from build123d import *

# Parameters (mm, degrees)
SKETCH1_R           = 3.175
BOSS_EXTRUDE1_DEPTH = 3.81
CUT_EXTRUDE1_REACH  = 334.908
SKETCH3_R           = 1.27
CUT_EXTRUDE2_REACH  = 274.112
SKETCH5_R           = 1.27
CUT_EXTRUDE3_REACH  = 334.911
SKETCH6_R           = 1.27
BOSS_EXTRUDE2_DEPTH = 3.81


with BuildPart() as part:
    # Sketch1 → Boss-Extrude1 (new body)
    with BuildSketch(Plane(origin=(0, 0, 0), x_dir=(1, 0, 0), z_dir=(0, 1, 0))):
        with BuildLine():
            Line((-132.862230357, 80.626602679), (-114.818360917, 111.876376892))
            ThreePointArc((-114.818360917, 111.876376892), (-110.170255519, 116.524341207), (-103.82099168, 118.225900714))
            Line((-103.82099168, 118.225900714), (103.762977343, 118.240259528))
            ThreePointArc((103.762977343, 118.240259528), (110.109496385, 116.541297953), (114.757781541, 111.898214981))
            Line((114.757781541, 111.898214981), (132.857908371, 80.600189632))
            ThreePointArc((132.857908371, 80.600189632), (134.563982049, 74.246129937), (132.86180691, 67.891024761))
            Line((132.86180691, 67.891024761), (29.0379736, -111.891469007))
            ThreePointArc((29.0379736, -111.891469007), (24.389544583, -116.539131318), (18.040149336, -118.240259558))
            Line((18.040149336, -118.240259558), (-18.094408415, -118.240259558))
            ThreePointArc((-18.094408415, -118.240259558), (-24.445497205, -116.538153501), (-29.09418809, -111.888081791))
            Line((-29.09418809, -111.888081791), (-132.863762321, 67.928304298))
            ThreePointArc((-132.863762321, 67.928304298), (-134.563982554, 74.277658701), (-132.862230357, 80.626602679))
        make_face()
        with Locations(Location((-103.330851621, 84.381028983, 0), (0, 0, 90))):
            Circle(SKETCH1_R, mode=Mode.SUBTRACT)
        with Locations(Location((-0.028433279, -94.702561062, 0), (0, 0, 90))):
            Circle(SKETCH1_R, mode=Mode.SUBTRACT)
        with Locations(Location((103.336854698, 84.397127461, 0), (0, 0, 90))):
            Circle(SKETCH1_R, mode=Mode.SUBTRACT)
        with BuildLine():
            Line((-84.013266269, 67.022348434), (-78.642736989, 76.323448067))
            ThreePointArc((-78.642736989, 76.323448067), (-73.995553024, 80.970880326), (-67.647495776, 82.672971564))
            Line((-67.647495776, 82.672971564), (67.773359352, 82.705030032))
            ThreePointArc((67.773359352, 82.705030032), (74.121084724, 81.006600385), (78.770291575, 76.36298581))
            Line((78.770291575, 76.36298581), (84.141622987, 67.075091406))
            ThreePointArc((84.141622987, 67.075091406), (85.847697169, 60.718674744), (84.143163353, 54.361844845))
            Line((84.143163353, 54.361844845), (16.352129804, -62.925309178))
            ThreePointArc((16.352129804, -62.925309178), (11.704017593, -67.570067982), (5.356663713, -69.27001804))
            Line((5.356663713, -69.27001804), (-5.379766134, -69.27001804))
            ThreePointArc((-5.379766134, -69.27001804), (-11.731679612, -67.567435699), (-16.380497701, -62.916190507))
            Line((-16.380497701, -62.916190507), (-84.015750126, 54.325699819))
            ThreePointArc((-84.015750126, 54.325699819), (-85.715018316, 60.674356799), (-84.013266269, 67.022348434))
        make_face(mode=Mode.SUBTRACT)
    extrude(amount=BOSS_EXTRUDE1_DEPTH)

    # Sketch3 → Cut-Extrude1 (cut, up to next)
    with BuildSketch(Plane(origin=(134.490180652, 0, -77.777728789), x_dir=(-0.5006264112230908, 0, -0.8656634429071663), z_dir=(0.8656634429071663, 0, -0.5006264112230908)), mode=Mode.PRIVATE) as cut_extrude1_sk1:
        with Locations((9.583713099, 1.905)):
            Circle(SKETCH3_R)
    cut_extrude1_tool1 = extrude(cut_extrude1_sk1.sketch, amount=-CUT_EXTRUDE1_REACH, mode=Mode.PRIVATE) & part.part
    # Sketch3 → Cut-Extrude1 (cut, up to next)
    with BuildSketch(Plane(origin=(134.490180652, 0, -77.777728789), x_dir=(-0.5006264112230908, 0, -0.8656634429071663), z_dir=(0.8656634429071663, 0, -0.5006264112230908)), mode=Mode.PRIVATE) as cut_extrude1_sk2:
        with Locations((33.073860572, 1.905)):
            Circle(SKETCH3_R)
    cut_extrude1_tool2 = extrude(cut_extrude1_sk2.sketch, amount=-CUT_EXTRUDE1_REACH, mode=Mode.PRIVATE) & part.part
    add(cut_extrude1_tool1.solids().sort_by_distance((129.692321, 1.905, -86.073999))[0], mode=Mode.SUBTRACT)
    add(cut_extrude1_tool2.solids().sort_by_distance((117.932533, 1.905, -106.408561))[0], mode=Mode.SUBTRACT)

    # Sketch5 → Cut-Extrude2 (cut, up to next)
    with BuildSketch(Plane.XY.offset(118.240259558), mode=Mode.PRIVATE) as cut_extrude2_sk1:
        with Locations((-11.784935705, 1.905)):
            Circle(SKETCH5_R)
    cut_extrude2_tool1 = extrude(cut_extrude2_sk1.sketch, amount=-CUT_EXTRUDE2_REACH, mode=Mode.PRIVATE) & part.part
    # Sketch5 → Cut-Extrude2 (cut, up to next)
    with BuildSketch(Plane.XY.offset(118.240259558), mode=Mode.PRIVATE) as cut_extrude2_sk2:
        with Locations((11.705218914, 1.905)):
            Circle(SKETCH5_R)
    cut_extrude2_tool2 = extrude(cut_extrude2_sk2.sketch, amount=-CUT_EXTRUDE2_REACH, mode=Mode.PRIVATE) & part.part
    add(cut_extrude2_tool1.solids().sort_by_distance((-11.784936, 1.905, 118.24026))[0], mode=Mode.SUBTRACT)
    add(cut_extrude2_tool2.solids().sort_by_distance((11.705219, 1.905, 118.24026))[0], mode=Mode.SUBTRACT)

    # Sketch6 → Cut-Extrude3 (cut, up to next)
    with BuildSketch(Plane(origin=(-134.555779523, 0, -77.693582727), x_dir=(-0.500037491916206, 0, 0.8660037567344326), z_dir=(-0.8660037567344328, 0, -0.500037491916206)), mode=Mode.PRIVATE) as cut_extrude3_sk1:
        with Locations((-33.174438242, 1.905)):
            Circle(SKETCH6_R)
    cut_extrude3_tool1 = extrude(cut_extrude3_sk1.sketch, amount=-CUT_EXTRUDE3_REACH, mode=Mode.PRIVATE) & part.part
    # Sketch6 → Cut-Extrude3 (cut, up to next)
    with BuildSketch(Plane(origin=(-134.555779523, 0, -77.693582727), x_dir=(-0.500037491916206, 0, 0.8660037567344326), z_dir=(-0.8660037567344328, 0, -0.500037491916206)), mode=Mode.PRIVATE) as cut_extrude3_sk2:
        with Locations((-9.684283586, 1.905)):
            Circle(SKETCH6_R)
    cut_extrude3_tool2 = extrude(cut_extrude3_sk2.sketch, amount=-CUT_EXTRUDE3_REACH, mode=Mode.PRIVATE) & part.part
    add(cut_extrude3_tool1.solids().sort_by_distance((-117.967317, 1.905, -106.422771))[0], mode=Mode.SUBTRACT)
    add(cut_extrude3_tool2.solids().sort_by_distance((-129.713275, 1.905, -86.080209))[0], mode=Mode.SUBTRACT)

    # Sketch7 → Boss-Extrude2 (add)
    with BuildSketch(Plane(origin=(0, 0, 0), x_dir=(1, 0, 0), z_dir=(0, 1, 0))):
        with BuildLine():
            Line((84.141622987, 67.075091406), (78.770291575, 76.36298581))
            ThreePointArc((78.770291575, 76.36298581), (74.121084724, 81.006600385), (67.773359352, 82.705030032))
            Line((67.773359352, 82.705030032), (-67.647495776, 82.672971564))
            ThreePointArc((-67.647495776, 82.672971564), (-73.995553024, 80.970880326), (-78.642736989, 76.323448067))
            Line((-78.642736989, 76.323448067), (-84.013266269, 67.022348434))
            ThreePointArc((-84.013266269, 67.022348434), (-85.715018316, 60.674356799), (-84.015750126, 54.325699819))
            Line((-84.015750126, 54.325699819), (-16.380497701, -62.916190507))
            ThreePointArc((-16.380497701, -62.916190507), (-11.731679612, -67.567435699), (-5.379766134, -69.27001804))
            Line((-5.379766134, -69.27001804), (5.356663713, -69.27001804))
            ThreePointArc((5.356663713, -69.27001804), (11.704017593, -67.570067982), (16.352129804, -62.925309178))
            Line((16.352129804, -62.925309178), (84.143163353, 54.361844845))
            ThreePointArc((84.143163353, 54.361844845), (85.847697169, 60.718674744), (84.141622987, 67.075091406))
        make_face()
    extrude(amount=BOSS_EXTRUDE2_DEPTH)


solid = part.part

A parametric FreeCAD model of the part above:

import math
import FreeCAD as App
import Part
import Sketcher

V = App.Vector
Q = App.Units.Quantity

doc = App.newDocument("Part")
body = doc.addObject("PartDesign::Body", "Body")

# Sketch on XZ plane
sketch1 = body.newObject("Sketcher::SketchObject", "Sketch")
sketch1.AttachmentSupport = (doc.getObject("XZ_Plane"), [""])
sketch1.MapMode = "FlatFace"
sketch1.addGeometry([
    Part.LineSegment(V(-114.8, -111.9, 0), V(-132.9, -80.6, 0)),  # 0
    Part.ArcOfCircle(Part.Circle(V(-121.9, -74.3, 0), V(0, 0, 1), 12.7), math.radians(150), math.radians(210)),  # 1
    Part.LineSegment(V(-132.9, -67.9, 0), V(-29.1, 111.9, 0)),  # 2
    Part.ArcOfCircle(Part.Circle(V(-18.1, 105.5, 0), V(0, 0, 1), 12.7), math.radians(90), math.radians(150)),  # 3
    Part.LineSegment(V(-18.1, 118.2, 0), V(18, 118.2, 0)),  # 4
    Part.ArcOfCircle(Part.Circle(V(18, 105.5, 0), V(0, 0, 1), 12.7), math.radians(30), math.radians(90)),  # 5
    Part.LineSegment(V(29, 111.9, 0), V(132.9, -67.9, 0)),  # 6
    Part.ArcOfCircle(Part.Circle(V(121.9, -74.2, 0), V(0, 0, 1), 12.7), math.radians(-30), math.radians(30)),  # 7
    Part.LineSegment(V(132.9, -80.6, 0), V(114.8, -111.9, 0)),  # 8
    Part.ArcOfCircle(Part.Circle(V(103.8, -105.5, 0), V(0, 0, 1), 12.7), math.radians(-90), math.radians(-30)),  # 9
    Part.LineSegment(V(103.8, -118.2, 0), V(-103.8, -118.2, 0)),  # 10
    Part.ArcOfCircle(Part.Circle(V(-103.8, -105.5, 0), V(0, 0, 1), 12.7), math.radians(-150), math.radians(-90)),  # 11
    Part.Circle(V(0, 94.7, 0), V(0, 0, 1), 3.2),  # 12
    Part.LineSegment(V(-84, -67, 0), V(-78.6, -76.3, 0)),  # 13
    Part.ArcOfCircle(Part.Circle(V(-67.6, -70, 0), V(0, 0, 1), 12.7), math.radians(-150), math.radians(-90)),  # 14
    Part.LineSegment(V(-67.6, -82.7, 0), V(67.8, -82.7, 0)),  # 15
    Part.ArcOfCircle(Part.Circle(V(67.8, -70, 0), V(0, 0, 1), 12.7), math.radians(-90), math.radians(-30)),  # 16
    Part.LineSegment(V(78.8, -76.4, 0), V(84.1, -67.1, 0)),  # 17
    Part.ArcOfCircle(Part.Circle(V(73.1, -60.7, 0), V(0, 0, 1), 12.7), math.radians(-30), math.radians(30)),  # 18
    Part.LineSegment(V(84.1, -54.4, 0), V(16.4, 62.9, 0)),  # 19
    Part.ArcOfCircle(Part.Circle(V(5.4, 56.6, 0), V(0, 0, 1), 12.7), math.radians(30), math.radians(90)),  # 20
    Part.LineSegment(V(5.4, 69.3, 0), V(-5.4, 69.3, 0)),  # 21
    Part.ArcOfCircle(Part.Circle(V(-5.4, 56.6, 0), V(0, 0, 1), 12.7), math.radians(90), math.radians(150)),  # 22
    Part.LineSegment(V(-16.4, 62.9, 0), V(-84, -54.3, 0)),  # 23
    Part.ArcOfCircle(Part.Circle(V(-73, -60.7, 0), V(0, 0, 1), 12.7), math.radians(150), math.radians(210)),  # 24
    Part.Circle(V(103.3, -84.4, 0), V(0, 0, 1), 3.2),  # 25
    Part.Circle(V(-103.3, -84.4, 0), V(0, 0, 1), 3.2),  # 26
], False)
sketch1.addConstraint([
    Sketcher.Constraint("Tangent", 0, 2, 1, 2),
    Sketcher.Constraint("Tangent", 1, 1, 2, 1),
    Sketcher.Constraint("Tangent", 2, 2, 3, 2),
    Sketcher.Constraint("Tangent", 3, 1, 4, 1),
    Sketcher.Constraint("Tangent", 4, 2, 5, 2),
    Sketcher.Constraint("Tangent", 5, 1, 6, 1),
    Sketcher.Constraint("Tangent", 6, 2, 7, 2),
    Sketcher.Constraint("Tangent", 7, 1, 8, 1),
    Sketcher.Constraint("Tangent", 8, 2, 9, 2),
    Sketcher.Constraint("Tangent", 9, 1, 10, 1),
    Sketcher.Constraint("Tangent", 10, 2, 11, 2),
    Sketcher.Constraint("Tangent", 11, 1, 0, 1),
    Sketcher.Constraint("Tangent", 13, 2, 14, 1),
    Sketcher.Constraint("Tangent", 14, 2, 15, 1),
    Sketcher.Constraint("Tangent", 15, 2, 16, 1),
    Sketcher.Constraint("Tangent", 16, 2, 17, 1),
    Sketcher.Constraint("Tangent", 17, 2, 18, 1),
    Sketcher.Constraint("Tangent", 18, 2, 19, 1),
    Sketcher.Constraint("Tangent", 19, 2, 20, 1),
    Sketcher.Constraint("Tangent", 20, 2, 21, 1),
    Sketcher.Constraint("Tangent", 21, 2, 22, 1),
    Sketcher.Constraint("Tangent", 22, 2, 23, 1),
    Sketcher.Constraint("Tangent", 23, 2, 24, 1),
    Sketcher.Constraint("Tangent", 24, 2, 13, 1),
    Sketcher.Constraint("Horizontal", 4),
    Sketcher.Constraint("Horizontal", 21),
    Sketcher.Constraint("Equal", 1, 3),
    Sketcher.Constraint("Equal", 3, 5),
    Sketcher.Constraint("Equal", 5, 7),
    Sketcher.Constraint("Equal", 7, 9),
    Sketcher.Constraint("Equal", 9, 11),
    Sketcher.Constraint("Equal", 11, 14),
    Sketcher.Constraint("Equal", 14, 16),
    Sketcher.Constraint("Equal", 16, 18),
    Sketcher.Constraint("Equal", 18, 20),
    Sketcher.Constraint("Equal", 20, 22),
    Sketcher.Constraint("Equal", 22, 24),
    Sketcher.Constraint("Equal", 12, 25),
    Sketcher.Constraint("Equal", 25, 26),
    Sketcher.Constraint("Parallel", 0, 13),
    Sketcher.Constraint("Parallel", 8, 17),
    Sketcher.Constraint("Radius", 1, Q("0.5 in")),
    Sketcher.Constraint("Diameter", 12, Q("0.25 in")),
    Sketcher.Constraint("DistanceX", 21, 2, 21, 1, 10.73643),
    Sketcher.Constraint("DistanceY", 11, 3, -1, 1, 105.525901),
    Sketcher.Constraint("DistanceY", 23, 2, -1, 1, 54.3257),
    Sketcher.Constraint("DistanceY", 12, 3, 3, 3, 10.837698),
    Sketcher.Constraint("DistanceX", 12, 3, 16, 3, 67.804799),
    Sketcher.Constraint("DistanceY", 7, 3, 18, 3, 13.525098),
    Sketcher.Constraint("DistanceY", 14, 3, 24, 3, 9.3011),
    Sketcher.Constraint("DistanceX", 25, 3, 9, 3, 0.427001),
    Sketcher.Constraint("DistanceY", 11, 3, 0, 2, 24.899298),
    Sketcher.Constraint("DistanceY", 0, 2, 1, 1, 12.698298),
    Sketcher.Constraint("DistanceX", 7, 1, 6, 2, 0.003899),
    Sketcher.Constraint("DistanceX", 8, 2, 7, 3, 7.106201),
    Sketcher.Constraint("DistanceX", 26, 3, 23, 2, 19.315101),
    Sketcher.Constraint("Distance", 2, 207.61035),
    Sketcher.Constraint("Distance", 10, 207.58397),
    Sketcher.Constraint("Distance", 15, 135.420859),
    Sketcher.Constraint("Distance", 17, 10.729221),
    Sketcher.Constraint("Distance", 23, 135.35209),
    Sketcher.Constraint("DistanceX", 4, 1, 4, 2, 36.134558),
    Sketcher.Constraint("DistanceX", 3, 3, -1, 1, 18.094408),
    Sketcher.Constraint("DistanceY", -1, 1, 3, 3, 105.54026),
    Sketcher.Constraint("DistanceY", 9, 3, -1, 1, 105.54026),
    Sketcher.Constraint("DistanceX", 14, 3, -1, 1, 67.644489),
    Sketcher.Constraint("DistanceY", 14, 3, -1, 1, 69.972972),
    Sketcher.Constraint("DistanceY", 26, 3, -1, 1, 84.381029),
    Sketcher.Constraint("DistanceY", 25, 3, 18, 3, 23.679991),
])
pad1 = body.newObject("PartDesign::Pad", "Pad")
pad1.Profile = sketch1
pad1.Length = Q("0.15 in")
pad1.Reversed = True

# Sketch on an angled plane
sketch2 = body.newObject("Sketcher::SketchObject", "Sketch001")
sketch2.Placement = App.Placement(V(134.490181, 0, -77.777729), App.Rotation(V(-0.500626411, 0, -0.865663443), V(0, 1, 0), V(0.865663443, 0, -0.500626411), "ZXY"))
sketch2.addGeometry(Part.Circle(V(9.6, 1.9, 0), V(0, 0, 1), 1.3), False)
sketch2.addConstraint([
    Sketcher.Constraint("Diameter", 0, Q("0.1 in")),
    Sketcher.Constraint("DistanceY", -1, 1, 0, 3, Q("0.075 in")),
    Sketcher.Constraint("DistanceX", -1, 1, 0, 3, 9.583713),
])
pocket1 = body.newObject("PartDesign::Pocket", "Pocket")
pocket1.Profile = sketch2
pocket1.Type = "UpToFirst"

# Sketch on an angled plane
sketch3 = body.newObject("Sketcher::SketchObject", "Sketch002")
sketch3.Placement = App.Placement(V(134.490181, 0, -77.777729), App.Rotation(V(-0.500626411, 0, -0.865663443), V(0, 1, 0), V(0.865663443, 0, -0.500626411), "ZXY"))
sketch3.addGeometry(Part.Circle(V(33.1, 1.9, 0), V(0, 0, 1), 1.3), False)
sketch3.addConstraint([
    Sketcher.Constraint("Diameter", 0, Q("0.1 in")),
    Sketcher.Constraint("DistanceY", -1, 1, 0, 3, Q("0.075 in")),
    Sketcher.Constraint("DistanceX", -1, 1, 0, 3, 33.073861),
])
pocket2 = body.newObject("PartDesign::Pocket", "Pocket001")
pocket2.Profile = sketch3
pocket2.Type = "UpToFirst"

# Sketch on XY plane
sketch4 = body.newObject("Sketcher::SketchObject", "Sketch003")
sketch4.AttachmentSupport = (doc.getObject("XY_Plane"), [""])
sketch4.MapMode = "FlatFace"
sketch4.AttachmentOffset = App.Placement(V(0, 0, 118.24026), App.Rotation())
sketch4.addGeometry(Part.Circle(V(-11.8, 1.9, 0), V(0, 0, 1), 1.3), False)
sketch4.addConstraint([
    Sketcher.Constraint("Diameter", 0, Q("0.1 in")),
    Sketcher.Constraint("DistanceY", -1, 1, 0, 3, Q("0.075 in")),
    Sketcher.Constraint("DistanceX", 0, 3, -1, 1, 11.784936),
])
pocket3 = body.newObject("PartDesign::Pocket", "Pocket002")
pocket3.Profile = sketch4
pocket3.Type = "UpToFirst"

# Sketch on XY plane
sketch5 = body.newObject("Sketcher::SketchObject", "Sketch004")
sketch5.AttachmentSupport = (doc.getObject("XY_Plane"), [""])
sketch5.MapMode = "FlatFace"
sketch5.AttachmentOffset = App.Placement(V(0, 0, 118.24026), App.Rotation())
sketch5.addGeometry(Part.Circle(V(11.7, 1.9, 0), V(0, 0, 1), 1.3), False)
sketch5.addConstraint([
    Sketcher.Constraint("Diameter", 0, Q("0.1 in")),
    Sketcher.Constraint("DistanceY", -1, 1, 0, 3, Q("0.075 in")),
    Sketcher.Constraint("DistanceX", -1, 1, 0, 3, 11.705219),
])
pocket4 = body.newObject("PartDesign::Pocket", "Pocket003")
pocket4.Profile = sketch5
pocket4.Type = "UpToFirst"

# Sketch on an angled plane
sketch6 = body.newObject("Sketcher::SketchObject", "Sketch005")
sketch6.Placement = App.Placement(V(-134.55578, 0, -77.693583), App.Rotation(V(-0.500037492, 0, 0.866003757), V(0, 1.000000001, 0), V(-0.866003757, 0, -0.500037492), "ZXY"))
sketch6.addGeometry(Part.Circle(V(-33.2, 1.9, 0), V(0, 0, 1), 1.3), False)
sketch6.addConstraint([
    Sketcher.Constraint("Diameter", 0, Q("0.1 in")),
    Sketcher.Constraint("DistanceY", -1, 1, 0, 3, Q("0.075 in")),
    Sketcher.Constraint("DistanceX", 0, 3, -1, 1, 33.174438),
])
pocket5 = body.newObject("PartDesign::Pocket", "Pocket004")
pocket5.Profile = sketch6
pocket5.Type = "UpToFirst"

# Sketch on an angled plane
sketch7 = body.newObject("Sketcher::SketchObject", "Sketch006")
sketch7.Placement = App.Placement(V(-134.55578, 0, -77.693583), App.Rotation(V(-0.500037492, 0, 0.866003757), V(0, 1.000000001, 0), V(-0.866003757, 0, -0.500037492), "ZXY"))
sketch7.addGeometry(Part.Circle(V(-9.7, 1.9, 0), V(0, 0, 1), 1.3), False)
sketch7.addConstraint([
    Sketcher.Constraint("Diameter", 0, Q("0.1 in")),
    Sketcher.Constraint("DistanceY", -1, 1, 0, 3, Q("0.075 in")),
    Sketcher.Constraint("DistanceX", 0, 3, -1, 1, 9.684284),
])
pocket6 = body.newObject("PartDesign::Pocket", "Pocket005")
pocket6.Profile = sketch7
pocket6.Type = "UpToFirst"

# Sketch on XZ plane
sketch8 = body.newObject("Sketcher::SketchObject", "Sketch007")
sketch8.AttachmentSupport = (doc.getObject("XZ_Plane"), [""])
sketch8.MapMode = "FlatFace"
sketch8.addGeometry([
    Part.LineSegment(V(84, -67, 0), V(79, -76, 0)),  # 0
    Part.ArcOfCircle(Part.Circle(V(68, -70, 0), V(0, 0, 1), 13), math.radians(-90), math.radians(-30)),  # 1
    Part.LineSegment(V(68, -83, 0), V(-68, -83, 0)),  # 2
    Part.ArcOfCircle(Part.Circle(V(-68, -70, 0), V(0, 0, 1), 13), math.radians(-150), math.radians(-90)),  # 3
    Part.LineSegment(V(-79, -76, 0), V(-84, -67, 0)),  # 4
    Part.ArcOfCircle(Part.Circle(V(-73, -61, 0), V(0, 0, 1), 13), math.radians(150), math.radians(210)),  # 5
    Part.LineSegment(V(-84, -54, 0), V(-16, 63, 0)),  # 6
    Part.ArcOfCircle(Part.Circle(V(-5, 57, 0), V(0, 0, 1), 13), math.radians(90), math.radians(150)),  # 7
    Part.LineSegment(V(-5, 69, 0), V(5, 69, 0)),  # 8
    Part.ArcOfCircle(Part.Circle(V(5, 57, 0), V(0, 0, 1), 13), math.radians(30), math.radians(90)),  # 9
    Part.LineSegment(V(16, 63, 0), V(84, -54, 0)),  # 10
    Part.ArcOfCircle(Part.Circle(V(73, -61, 0), V(0, 0, 1), 13), math.radians(-30), math.radians(30)),  # 11
], False)
sketch8.addConstraint([
    Sketcher.Constraint("Tangent", 0, 2, 1, 2),
    Sketcher.Constraint("Tangent", 1, 1, 2, 1),
    Sketcher.Constraint("Tangent", 2, 2, 3, 2),
    Sketcher.Constraint("Tangent", 3, 1, 4, 1),
    Sketcher.Constraint("Tangent", 4, 2, 5, 2),
    Sketcher.Constraint("Tangent", 5, 1, 6, 1),
    Sketcher.Constraint("Tangent", 6, 2, 7, 2),
    Sketcher.Constraint("Tangent", 7, 1, 8, 1),
    Sketcher.Constraint("Tangent", 8, 2, 9, 2),
    Sketcher.Constraint("Tangent", 9, 1, 10, 1),
    Sketcher.Constraint("Tangent", 10, 2, 11, 2),
    Sketcher.Constraint("Tangent", 11, 1, 0, 1),
    Sketcher.Constraint("Horizontal", 8),
    Sketcher.Constraint("Equal", 1, 3),
    Sketcher.Constraint("Equal", 3, 5),
    Sketcher.Constraint("Equal", 5, 7),
    Sketcher.Constraint("Equal", 7, 9),
    Sketcher.Constraint("Equal", 9, 11),
    Sketcher.Constraint("Radius", 1, Q("0.5 in")),
    Sketcher.Constraint("DistanceX", 8, 1, 8, 2, 10.73643),
    Sketcher.Constraint("DistanceY", 5, 1, -1, 1, 54.3257),
    Sketcher.Constraint("DistanceY", 3, 3, 5, 3, 9.3011),
    Sketcher.Constraint("DistanceX", 4, 2, 7, 3, 78.6335),
    Sketcher.Constraint("Distance", 0, 10.729221),
    Sketcher.Constraint("Distance", 2, 135.420859),
    Sketcher.Constraint("Distance", 6, 135.35209),
    Sketcher.Constraint("DistanceY", 1, 3, -1, 1, 70.00503),
    Sketcher.Constraint("DistanceX", 3, 3, -1, 1, 67.644489),
    Sketcher.Constraint("DistanceY", 3, 3, -1, 1, 69.972972),
    Sketcher.Constraint("DistanceX", -1, 1, 0, 2, 78.770292),
])
pad2 = body.newObject("PartDesign::Pad", "Pad001")
pad2.Profile = sketch8
pad2.Length = Q("0.15 in")
pad2.Reversed = True

doc.recompute()
